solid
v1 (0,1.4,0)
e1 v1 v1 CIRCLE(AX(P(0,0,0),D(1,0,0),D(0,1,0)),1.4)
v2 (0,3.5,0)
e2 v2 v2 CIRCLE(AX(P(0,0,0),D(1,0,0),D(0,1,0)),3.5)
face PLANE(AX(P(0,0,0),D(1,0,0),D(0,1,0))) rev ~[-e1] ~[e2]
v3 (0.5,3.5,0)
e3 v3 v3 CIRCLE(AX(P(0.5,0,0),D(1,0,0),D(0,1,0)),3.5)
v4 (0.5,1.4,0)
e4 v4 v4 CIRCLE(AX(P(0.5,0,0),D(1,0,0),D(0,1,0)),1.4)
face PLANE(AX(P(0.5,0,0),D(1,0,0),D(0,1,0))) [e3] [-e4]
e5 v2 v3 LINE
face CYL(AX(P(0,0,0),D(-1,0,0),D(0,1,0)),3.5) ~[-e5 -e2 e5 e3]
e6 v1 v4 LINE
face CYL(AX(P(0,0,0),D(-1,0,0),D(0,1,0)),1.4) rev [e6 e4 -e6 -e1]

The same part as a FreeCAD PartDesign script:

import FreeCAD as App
import Part
import Sketcher

doc = App.newDocument("Part")
body = doc.addObject("PartDesign::Body", "Body")

sketch1 = body.newObject("Sketcher::SketchObject", "Sketch")
sketch1.AttachmentSupport = (doc.getObject("YZ_Plane"), [""])
sketch1.MapMode = "FlatFace"
sketch1.addGeometry([
    Part.Circle(App.Vector(0, 0, 0), App.Vector(0, 0, 1), 3.5),
    Part.Circle(App.Vector(0, 0, 0), App.Vector(0, 0, 1), 1.4),
], False)
sketch1.addConstraint([
    Sketcher.Constraint("Coincident", 0, 3, -1, 1),
    Sketcher.Constraint("Coincident", 1, 3, -1, 1),
    Sketcher.Constraint("Diameter", 0, 7.0),
    Sketcher.Constraint("Diameter", 1, 2.8),
])
pad1 = body.newObject("PartDesign::Pad", "Pad")
pad1.Profile = sketch1
pad1.Length = 0.5

doc.recompute()
